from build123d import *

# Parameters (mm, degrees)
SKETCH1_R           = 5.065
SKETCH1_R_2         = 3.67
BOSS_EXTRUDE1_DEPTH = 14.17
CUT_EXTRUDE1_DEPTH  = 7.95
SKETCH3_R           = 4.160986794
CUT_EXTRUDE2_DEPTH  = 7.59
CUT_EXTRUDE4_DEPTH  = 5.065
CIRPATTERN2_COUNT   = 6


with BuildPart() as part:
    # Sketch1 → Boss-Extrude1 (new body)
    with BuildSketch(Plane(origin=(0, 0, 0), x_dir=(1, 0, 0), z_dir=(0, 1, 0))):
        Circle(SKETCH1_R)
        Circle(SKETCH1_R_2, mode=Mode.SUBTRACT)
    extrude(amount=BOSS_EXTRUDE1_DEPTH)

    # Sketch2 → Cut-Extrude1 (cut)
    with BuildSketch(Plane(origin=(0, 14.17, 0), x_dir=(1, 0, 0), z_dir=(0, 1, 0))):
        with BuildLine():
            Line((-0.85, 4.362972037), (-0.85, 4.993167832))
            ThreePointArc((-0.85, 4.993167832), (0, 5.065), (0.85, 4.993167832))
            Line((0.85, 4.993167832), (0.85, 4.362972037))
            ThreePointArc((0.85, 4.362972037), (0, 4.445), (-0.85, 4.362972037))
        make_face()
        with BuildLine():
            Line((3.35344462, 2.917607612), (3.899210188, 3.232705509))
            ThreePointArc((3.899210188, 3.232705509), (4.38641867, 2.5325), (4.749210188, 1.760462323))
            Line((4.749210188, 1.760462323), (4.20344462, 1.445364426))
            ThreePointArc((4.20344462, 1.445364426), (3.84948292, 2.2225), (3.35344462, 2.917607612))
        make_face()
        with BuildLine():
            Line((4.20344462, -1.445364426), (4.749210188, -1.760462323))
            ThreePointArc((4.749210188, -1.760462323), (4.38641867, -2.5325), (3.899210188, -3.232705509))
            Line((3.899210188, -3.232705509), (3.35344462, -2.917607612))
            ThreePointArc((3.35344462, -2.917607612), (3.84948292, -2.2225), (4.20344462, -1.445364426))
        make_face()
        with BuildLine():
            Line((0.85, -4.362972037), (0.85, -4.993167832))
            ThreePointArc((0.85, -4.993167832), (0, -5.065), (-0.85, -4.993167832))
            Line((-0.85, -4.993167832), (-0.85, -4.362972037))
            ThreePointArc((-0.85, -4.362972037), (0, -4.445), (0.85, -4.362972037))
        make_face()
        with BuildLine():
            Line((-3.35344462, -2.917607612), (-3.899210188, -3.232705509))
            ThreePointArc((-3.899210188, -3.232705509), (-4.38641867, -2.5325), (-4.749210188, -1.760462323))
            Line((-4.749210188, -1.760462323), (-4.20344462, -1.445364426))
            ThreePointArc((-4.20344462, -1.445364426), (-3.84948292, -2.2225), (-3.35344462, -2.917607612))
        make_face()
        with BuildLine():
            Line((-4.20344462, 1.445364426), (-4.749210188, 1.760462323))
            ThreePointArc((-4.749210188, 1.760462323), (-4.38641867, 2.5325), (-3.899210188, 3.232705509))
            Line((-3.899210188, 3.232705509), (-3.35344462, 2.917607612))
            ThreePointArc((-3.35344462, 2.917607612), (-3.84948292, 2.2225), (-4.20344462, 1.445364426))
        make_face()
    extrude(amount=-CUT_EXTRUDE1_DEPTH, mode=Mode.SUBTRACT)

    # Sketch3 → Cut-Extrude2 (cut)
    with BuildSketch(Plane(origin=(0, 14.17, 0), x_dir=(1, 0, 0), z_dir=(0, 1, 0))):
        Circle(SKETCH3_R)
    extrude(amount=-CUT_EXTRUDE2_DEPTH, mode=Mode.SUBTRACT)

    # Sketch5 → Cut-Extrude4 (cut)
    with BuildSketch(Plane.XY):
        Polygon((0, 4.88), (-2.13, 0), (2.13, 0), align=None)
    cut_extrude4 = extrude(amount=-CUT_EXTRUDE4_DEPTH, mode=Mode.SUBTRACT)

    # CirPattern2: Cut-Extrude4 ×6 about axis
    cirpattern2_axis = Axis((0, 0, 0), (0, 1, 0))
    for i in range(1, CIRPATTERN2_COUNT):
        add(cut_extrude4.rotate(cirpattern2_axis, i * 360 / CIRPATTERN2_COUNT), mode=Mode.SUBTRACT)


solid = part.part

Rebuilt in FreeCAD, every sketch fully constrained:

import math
import FreeCAD as App
import Part
import Sketcher
from FreeCAD import Vector
Q = App.Units.Quantity

doc = App.newDocument("Part")
body = doc.addObject("PartDesign::Body", "Body")

# Sketch on XZ plane
sketch1 = body.newObject("Sketcher::SketchObject", "Sketch")
sketch1.AttachmentSupport = (doc.getObject("XZ_Plane"), [""])
sketch1.MapMode = "FlatFace"
sketch1.addGeometry([
    Part.Circle(Vector(0, 0, 0), Vector(0, 0, 1), 5.1),
    Part.Circle(Vector(0, 0, 0), Vector(0, 0, 1), 3.7),
], False)
sketch1.addConstraint([
    Sketcher.Constraint("Coincident", 0, 3, -1, 1),
    Sketcher.Constraint("Coincident", 1, 3, -1, 1),
    Sketcher.Constraint("Diameter", 0, Q("10.13 mm")),
    Sketcher.Constraint("Diameter", 1, Q("7.34 mm")),
])
pad1 = body.newObject("PartDesign::Pad", "Pad")
pad1.Profile = sketch1
pad1.Length = 14.17
pad1.Reversed = True

# Sketch on XZ plane
sketch2 = body.newObject("Sketcher::SketchObject", "Sketch001")
sketch2.AttachmentSupport = (doc.getObject("XZ_Plane"), [""])
sketch2.MapMode = "FlatFace"
sketch2.AttachmentOffset = App.Placement(Vector(0, 0, -14.17), App.Rotation())
sketch2.addGeometry([
    Part.LineSegment(Vector(-0.8, -5, 0), Vector(-0.8, -4.4, 0)),  # 0
    Part.ArcOfCircle(Part.Circle(Vector(0, 0, 0), Vector(0, 0, 1), 4.4), math.radians(-101), math.radians(-79)),  # 1
    Part.LineSegment(Vector(0.8, -4.4, 0), Vector(0.8, -5, 0)),  # 2
    Part.ArcOfCircle(Part.Circle(Vector(0, 0, 0), Vector(0, 0, 1), 5.1), math.radians(-99.66), math.radians(-80.34)),  # 3
    Part.LineSegment(Vector(3.9, -3.2, 0), Vector(3.4, -2.9, 0)),  # 4
    Part.ArcOfCircle(Part.Circle(Vector(0, 0, 0), Vector(0, 0, 1), 4.4), math.radians(-41), math.radians(-19)),  # 5
    Part.LineSegment(Vector(4.2, -1.4, 0), Vector(4.7, -1.8, 0)),  # 6
    Part.ArcOfCircle(Part.Circle(Vector(0, 0, 0), Vector(0, 0, 1), 5.1), math.radians(-39.66), math.radians(-20.34)),  # 7
    Part.LineSegment(Vector(4.7, 1.8, 0), Vector(4.2, 1.4, 0)),  # 8
    Part.ArcOfCircle(Part.Circle(Vector(0, 0, 0), Vector(0, 0, 1), 4.4), math.radians(19), math.radians(41)),  # 9
    Part.LineSegment(Vector(3.4, 2.9, 0), Vector(3.9, 3.2, 0)),  # 10
    Part.ArcOfCircle(Part.Circle(Vector(0, 0, 0), Vector(0, 0, 1), 5.1), math.radians(20.34), math.radians(39.66)),  # 11
    Part.LineSegment(Vector(0.8, 5, 0), Vector(0.8, 4.4, 0)),  # 12
    Part.ArcOfCircle(Part.Circle(Vector(0, 0, 0), Vector(0, 0, 1), 4.4), math.radians(79), math.radians(101)),  # 13
    Part.LineSegment(Vector(-0.8, 4.4, 0), Vector(-0.8, 5, 0)),  # 14
    Part.ArcOfCircle(Part.Circle(Vector(0, 0, 0), Vector(0, 0, 1), 5.1), math.radians(80.34), math.radians(99.66)),  # 15
    Part.LineSegment(Vector(-3.9, 3.2, 0), Vector(-3.4, 2.9, 0)),  # 16
    Part.ArcOfCircle(Part.Circle(Vector(0, 0, 0), Vector(0, 0, 1), 4.4), math.radians(139), math.radians(161)),  # 17
    Part.LineSegment(Vector(-4.2, 1.4, 0), Vector(-4.7, 1.8, 0)),  # 18
    Part.ArcOfCircle(Part.Circle(Vector(0, 0, 0), Vector(0, 0, 1), 5.1), math.radians(140.34), math.radians(159.66)),  # 19
    Part.LineSegment(Vector(-4.7, -1.8, 0), Vector(-4.2, -1.4, 0)),  # 20
    Part.ArcOfCircle(Part.Circle(Vector(0, 0, 0), Vector(0, 0, 1), 4.4), math.radians(-161), math.radians(-139)),  # 21
    Part.LineSegment(Vector(-3.4, -2.9, 0), Vector(-3.9, -3.2, 0)),  # 22
    Part.ArcOfCircle(Part.Circle(Vector(0, 0, 0), Vector(0, 0, 1), 5.1), math.radians(-159.66), math.radians(-140.34)),  # 23
], False)
sketch2.addConstraint([
    Sketcher.Constraint("Coincident", 0, 2, 1, 1),
    Sketcher.Constraint("Coincident", 1, 2, 2, 1),
    Sketcher.Constraint("Coincident", 2, 2, 3, 2),
    Sketcher.Constraint("Coincident", 3, 1, 0, 1),
    Sketcher.Constraint("Coincident", 4, 2, 5, 1),
    Sketcher.Constraint("Coincident", 5, 2, 6, 1),
    Sketcher.Constraint("Coincident", 6, 2, 7, 2),
    Sketcher.Constraint("Coincident", 7, 1, 4, 1),
    Sketcher.Constraint("Coincident", 8, 2, 9, 1),
    Sketcher.Constraint("Coincident", 9, 2, 10, 1),
    Sketcher.Constraint("Coincident", 10, 2, 11, 2),
    Sketcher.Constraint("Coincident", 11, 1, 8, 1),
    Sketcher.Constraint("Coincident", 12, 2, 13, 1),
    Sketcher.Constraint("Coincident", 13, 2, 14, 1),
    Sketcher.Constraint("Coincident", 14, 2, 15, 2),
    Sketcher.Constraint("Coincident", 15, 1, 12, 1),
    Sketcher.Constraint("Coincident", 16, 2, 17, 1),
    Sketcher.Constraint("Coincident", 17, 2, 18, 1),
    Sketcher.Constraint("Coincident", 18, 2, 19, 2),
    Sketcher.Constraint("Coincident", 19, 1, 16, 1),
    Sketcher.Constraint("Coincident", 20, 2, 21, 1),
    Sketcher.Constraint("Coincident", 21, 2, 22, 1),
    Sketcher.Constraint("Coincident", 22, 2, 23, 2),
    Sketcher.Constraint("Coincident", 23, 1, 20, 1),
    Sketcher.Constraint("Vertical", 0),
    Sketcher.Constraint("Vertical", 2),
    Sketcher.Constraint("Vertical", 12),
    Sketcher.Constraint("Vertical", 14),
    Sketcher.Constraint("Coincident", 1, 3, -1, 1),
    Sketcher.Constraint("Coincident", 3, 3, -1, 1),
    Sketcher.Constraint("Coincident", 5, 3, -1, 1),
    Sketcher.Constraint("Coincident", 7, 3, -1, 1),
    Sketcher.Constraint("Coincident", 9, 3, -1, 1),
    Sketcher.Constraint("Coincident", 11, 3, -1, 1),
    Sketcher.Constraint("Coincident", 13, 3, -1, 1),
    Sketcher.Constraint("Coincident", 15, 3, -1, 1),
    Sketcher.Constraint("Coincident", 17, 3, -1, 1),
    Sketcher.Constraint("Coincident", 19, 3, -1, 1),
    Sketcher.Constraint("Coincident", 21, 3, -1, 1),
    Sketcher.Constraint("Coincident", 23, 3, -1, 1),
    Sketcher.Constraint("Equal", 1, 5),
    Sketcher.Constraint("Equal", 3, 7),
    Sketcher.Constraint("Equal", 5, 9),
    Sketcher.Constraint("Equal", 7, 11),
    Sketcher.Constraint("Equal", 9, 13),
    Sketcher.Constraint("Equal", 11, 15),
    Sketcher.Constraint("Equal", 13, 17),
    Sketcher.Constraint("Equal", 15, 19),
    Sketcher.Constraint("Equal", 17, 21),
    Sketcher.Constraint("Equal", 19, 23),
    Sketcher.Constraint("Parallel", 4, 6),
    Sketcher.Constraint("Parallel", 8, 10),
    Sketcher.Constraint("Parallel", 6, 16),
    Sketcher.Constraint("Parallel", 16, 18),
    Sketcher.Constraint("Parallel", 10, 20),
    Sketcher.Constraint("Parallel", 20, 22),
    Sketcher.Constraint("Horizontal", 0, 2, 1, 2),
    Sketcher.Constraint("Horizontal", 12, 2, 13, 2),
    Sketcher.Constraint("Horizontal", 9, 2, 16, 2),
    Sketcher.Constraint("Horizontal", 8, 2, 17, 2),
    Sketcher.Constraint("Horizontal", 11, 1, 18, 2),
    Sketcher.Constraint("Horizontal", 5, 2, 20, 2),
    Sketcher.Constraint("Horizontal", 4, 2, 21, 2),
    Sketcher.Constraint("Vertical", 5, 2, 8, 2),
    Sketcher.Constraint("Vertical", 4, 2, 9, 2),
    Sketcher.Constraint("Vertical", 2, 2, 12, 2),
    Sketcher.Constraint("Equal", 4, 6),
    Sketcher.Constraint("Angle", 4, Q("150 deg")),
    Sketcher.Constraint("Radius", 1, Q("0.175 in")),
    Sketcher.Constraint("Radius", 3, Q("5.065 mm")),
    Sketcher.Constraint("DistanceX", 0, 2, -1, 1, Q("0.85 mm")),
    Sketcher.Constraint("DistanceX", 4, 2, 5, 2, Q("0.85 mm")),
])
pocket1 = body.newObject("PartDesign::Pocket", "Pocket")
pocket1.Profile = sketch2
pocket1.Length = 7.95
pocket1.Reversed = True

# Sketch on XZ plane
sketch3 = body.newObject("Sketcher::SketchObject", "Sketch002")
sketch3.AttachmentSupport = (doc.getObject("XZ_Plane"), [""])
sketch3.MapMode = "FlatFace"
sketch3.AttachmentOffset = App.Placement(Vector(0, 0, -14.17), App.Rotation())
sketch3.addGeometry(Part.Circle(Vector(0, 0, 0), Vector(0, 0, 1), 4.2), False)
sketch3.addConstraint([
    Sketcher.Constraint("Coincident", 0, 3, -1, 1),
    Sketcher.Constraint("Diameter", 0, Q("8.321974 mm")),
])
pocket2 = body.newObject("PartDesign::Pocket", "Pocket001")
pocket2.Profile = sketch3
pocket2.Length = 7.59
pocket2.Reversed = True

# Sketch on XY plane
sketch4 = body.newObject("Sketcher::SketchObject", "Sketch003")
sketch4.AttachmentSupport = (doc.getObject("XY_Plane"), [""])
sketch4.MapMode = "FlatFace"
sketch4.addGeometry([
    Part.LineSegment(Vector(0, 4.9, 0), Vector(-2.1, 0, 0)),
    Part.LineSegment(Vector(-2.1, 0, 0), Vector(2.1, 0, 0)),
    Part.LineSegment(Vector(2.1, 0, 0), Vector(0, 4.9, 0)),
], False)
sketch4.addConstraint([
    Sketcher.Constraint("Coincident", 0, 2, 1, 1),
    Sketcher.Constraint("Coincident", 1, 2, 2, 1),
    Sketcher.Constraint("Coincident", 2, 2, 0, 1),
    Sketcher.Constraint("Horizontal", 1),
    Sketcher.Constraint("Symmetric", 0, 2, 1, 2, -1, 1),
    Sketcher.Constraint("PointOnObject", 2, 2, -2),
    Sketcher.Constraint("DistanceX", 1, 1, 1, 2, Q("4.26 mm")),
    Sketcher.Constraint("DistanceY", -1, 1, 2, 2, Q("4.88 mm")),
])
pocket3 = body.newObject("PartDesign::Pocket", "Pocket002")
pocket3.Profile = sketch4
pocket3.Length = 5.065
doc.recompute()

polarpattern = body.newObject("PartDesign::PolarPattern", "PolarPattern")
polarpattern.Originals = [pocket3]
polarpattern.Axis = (doc.getObject("Y_Axis"), [""])
polarpattern.Angle = 360
polarpattern.Occurrences = 6
body.Tip = polarpattern

doc.recompute()
